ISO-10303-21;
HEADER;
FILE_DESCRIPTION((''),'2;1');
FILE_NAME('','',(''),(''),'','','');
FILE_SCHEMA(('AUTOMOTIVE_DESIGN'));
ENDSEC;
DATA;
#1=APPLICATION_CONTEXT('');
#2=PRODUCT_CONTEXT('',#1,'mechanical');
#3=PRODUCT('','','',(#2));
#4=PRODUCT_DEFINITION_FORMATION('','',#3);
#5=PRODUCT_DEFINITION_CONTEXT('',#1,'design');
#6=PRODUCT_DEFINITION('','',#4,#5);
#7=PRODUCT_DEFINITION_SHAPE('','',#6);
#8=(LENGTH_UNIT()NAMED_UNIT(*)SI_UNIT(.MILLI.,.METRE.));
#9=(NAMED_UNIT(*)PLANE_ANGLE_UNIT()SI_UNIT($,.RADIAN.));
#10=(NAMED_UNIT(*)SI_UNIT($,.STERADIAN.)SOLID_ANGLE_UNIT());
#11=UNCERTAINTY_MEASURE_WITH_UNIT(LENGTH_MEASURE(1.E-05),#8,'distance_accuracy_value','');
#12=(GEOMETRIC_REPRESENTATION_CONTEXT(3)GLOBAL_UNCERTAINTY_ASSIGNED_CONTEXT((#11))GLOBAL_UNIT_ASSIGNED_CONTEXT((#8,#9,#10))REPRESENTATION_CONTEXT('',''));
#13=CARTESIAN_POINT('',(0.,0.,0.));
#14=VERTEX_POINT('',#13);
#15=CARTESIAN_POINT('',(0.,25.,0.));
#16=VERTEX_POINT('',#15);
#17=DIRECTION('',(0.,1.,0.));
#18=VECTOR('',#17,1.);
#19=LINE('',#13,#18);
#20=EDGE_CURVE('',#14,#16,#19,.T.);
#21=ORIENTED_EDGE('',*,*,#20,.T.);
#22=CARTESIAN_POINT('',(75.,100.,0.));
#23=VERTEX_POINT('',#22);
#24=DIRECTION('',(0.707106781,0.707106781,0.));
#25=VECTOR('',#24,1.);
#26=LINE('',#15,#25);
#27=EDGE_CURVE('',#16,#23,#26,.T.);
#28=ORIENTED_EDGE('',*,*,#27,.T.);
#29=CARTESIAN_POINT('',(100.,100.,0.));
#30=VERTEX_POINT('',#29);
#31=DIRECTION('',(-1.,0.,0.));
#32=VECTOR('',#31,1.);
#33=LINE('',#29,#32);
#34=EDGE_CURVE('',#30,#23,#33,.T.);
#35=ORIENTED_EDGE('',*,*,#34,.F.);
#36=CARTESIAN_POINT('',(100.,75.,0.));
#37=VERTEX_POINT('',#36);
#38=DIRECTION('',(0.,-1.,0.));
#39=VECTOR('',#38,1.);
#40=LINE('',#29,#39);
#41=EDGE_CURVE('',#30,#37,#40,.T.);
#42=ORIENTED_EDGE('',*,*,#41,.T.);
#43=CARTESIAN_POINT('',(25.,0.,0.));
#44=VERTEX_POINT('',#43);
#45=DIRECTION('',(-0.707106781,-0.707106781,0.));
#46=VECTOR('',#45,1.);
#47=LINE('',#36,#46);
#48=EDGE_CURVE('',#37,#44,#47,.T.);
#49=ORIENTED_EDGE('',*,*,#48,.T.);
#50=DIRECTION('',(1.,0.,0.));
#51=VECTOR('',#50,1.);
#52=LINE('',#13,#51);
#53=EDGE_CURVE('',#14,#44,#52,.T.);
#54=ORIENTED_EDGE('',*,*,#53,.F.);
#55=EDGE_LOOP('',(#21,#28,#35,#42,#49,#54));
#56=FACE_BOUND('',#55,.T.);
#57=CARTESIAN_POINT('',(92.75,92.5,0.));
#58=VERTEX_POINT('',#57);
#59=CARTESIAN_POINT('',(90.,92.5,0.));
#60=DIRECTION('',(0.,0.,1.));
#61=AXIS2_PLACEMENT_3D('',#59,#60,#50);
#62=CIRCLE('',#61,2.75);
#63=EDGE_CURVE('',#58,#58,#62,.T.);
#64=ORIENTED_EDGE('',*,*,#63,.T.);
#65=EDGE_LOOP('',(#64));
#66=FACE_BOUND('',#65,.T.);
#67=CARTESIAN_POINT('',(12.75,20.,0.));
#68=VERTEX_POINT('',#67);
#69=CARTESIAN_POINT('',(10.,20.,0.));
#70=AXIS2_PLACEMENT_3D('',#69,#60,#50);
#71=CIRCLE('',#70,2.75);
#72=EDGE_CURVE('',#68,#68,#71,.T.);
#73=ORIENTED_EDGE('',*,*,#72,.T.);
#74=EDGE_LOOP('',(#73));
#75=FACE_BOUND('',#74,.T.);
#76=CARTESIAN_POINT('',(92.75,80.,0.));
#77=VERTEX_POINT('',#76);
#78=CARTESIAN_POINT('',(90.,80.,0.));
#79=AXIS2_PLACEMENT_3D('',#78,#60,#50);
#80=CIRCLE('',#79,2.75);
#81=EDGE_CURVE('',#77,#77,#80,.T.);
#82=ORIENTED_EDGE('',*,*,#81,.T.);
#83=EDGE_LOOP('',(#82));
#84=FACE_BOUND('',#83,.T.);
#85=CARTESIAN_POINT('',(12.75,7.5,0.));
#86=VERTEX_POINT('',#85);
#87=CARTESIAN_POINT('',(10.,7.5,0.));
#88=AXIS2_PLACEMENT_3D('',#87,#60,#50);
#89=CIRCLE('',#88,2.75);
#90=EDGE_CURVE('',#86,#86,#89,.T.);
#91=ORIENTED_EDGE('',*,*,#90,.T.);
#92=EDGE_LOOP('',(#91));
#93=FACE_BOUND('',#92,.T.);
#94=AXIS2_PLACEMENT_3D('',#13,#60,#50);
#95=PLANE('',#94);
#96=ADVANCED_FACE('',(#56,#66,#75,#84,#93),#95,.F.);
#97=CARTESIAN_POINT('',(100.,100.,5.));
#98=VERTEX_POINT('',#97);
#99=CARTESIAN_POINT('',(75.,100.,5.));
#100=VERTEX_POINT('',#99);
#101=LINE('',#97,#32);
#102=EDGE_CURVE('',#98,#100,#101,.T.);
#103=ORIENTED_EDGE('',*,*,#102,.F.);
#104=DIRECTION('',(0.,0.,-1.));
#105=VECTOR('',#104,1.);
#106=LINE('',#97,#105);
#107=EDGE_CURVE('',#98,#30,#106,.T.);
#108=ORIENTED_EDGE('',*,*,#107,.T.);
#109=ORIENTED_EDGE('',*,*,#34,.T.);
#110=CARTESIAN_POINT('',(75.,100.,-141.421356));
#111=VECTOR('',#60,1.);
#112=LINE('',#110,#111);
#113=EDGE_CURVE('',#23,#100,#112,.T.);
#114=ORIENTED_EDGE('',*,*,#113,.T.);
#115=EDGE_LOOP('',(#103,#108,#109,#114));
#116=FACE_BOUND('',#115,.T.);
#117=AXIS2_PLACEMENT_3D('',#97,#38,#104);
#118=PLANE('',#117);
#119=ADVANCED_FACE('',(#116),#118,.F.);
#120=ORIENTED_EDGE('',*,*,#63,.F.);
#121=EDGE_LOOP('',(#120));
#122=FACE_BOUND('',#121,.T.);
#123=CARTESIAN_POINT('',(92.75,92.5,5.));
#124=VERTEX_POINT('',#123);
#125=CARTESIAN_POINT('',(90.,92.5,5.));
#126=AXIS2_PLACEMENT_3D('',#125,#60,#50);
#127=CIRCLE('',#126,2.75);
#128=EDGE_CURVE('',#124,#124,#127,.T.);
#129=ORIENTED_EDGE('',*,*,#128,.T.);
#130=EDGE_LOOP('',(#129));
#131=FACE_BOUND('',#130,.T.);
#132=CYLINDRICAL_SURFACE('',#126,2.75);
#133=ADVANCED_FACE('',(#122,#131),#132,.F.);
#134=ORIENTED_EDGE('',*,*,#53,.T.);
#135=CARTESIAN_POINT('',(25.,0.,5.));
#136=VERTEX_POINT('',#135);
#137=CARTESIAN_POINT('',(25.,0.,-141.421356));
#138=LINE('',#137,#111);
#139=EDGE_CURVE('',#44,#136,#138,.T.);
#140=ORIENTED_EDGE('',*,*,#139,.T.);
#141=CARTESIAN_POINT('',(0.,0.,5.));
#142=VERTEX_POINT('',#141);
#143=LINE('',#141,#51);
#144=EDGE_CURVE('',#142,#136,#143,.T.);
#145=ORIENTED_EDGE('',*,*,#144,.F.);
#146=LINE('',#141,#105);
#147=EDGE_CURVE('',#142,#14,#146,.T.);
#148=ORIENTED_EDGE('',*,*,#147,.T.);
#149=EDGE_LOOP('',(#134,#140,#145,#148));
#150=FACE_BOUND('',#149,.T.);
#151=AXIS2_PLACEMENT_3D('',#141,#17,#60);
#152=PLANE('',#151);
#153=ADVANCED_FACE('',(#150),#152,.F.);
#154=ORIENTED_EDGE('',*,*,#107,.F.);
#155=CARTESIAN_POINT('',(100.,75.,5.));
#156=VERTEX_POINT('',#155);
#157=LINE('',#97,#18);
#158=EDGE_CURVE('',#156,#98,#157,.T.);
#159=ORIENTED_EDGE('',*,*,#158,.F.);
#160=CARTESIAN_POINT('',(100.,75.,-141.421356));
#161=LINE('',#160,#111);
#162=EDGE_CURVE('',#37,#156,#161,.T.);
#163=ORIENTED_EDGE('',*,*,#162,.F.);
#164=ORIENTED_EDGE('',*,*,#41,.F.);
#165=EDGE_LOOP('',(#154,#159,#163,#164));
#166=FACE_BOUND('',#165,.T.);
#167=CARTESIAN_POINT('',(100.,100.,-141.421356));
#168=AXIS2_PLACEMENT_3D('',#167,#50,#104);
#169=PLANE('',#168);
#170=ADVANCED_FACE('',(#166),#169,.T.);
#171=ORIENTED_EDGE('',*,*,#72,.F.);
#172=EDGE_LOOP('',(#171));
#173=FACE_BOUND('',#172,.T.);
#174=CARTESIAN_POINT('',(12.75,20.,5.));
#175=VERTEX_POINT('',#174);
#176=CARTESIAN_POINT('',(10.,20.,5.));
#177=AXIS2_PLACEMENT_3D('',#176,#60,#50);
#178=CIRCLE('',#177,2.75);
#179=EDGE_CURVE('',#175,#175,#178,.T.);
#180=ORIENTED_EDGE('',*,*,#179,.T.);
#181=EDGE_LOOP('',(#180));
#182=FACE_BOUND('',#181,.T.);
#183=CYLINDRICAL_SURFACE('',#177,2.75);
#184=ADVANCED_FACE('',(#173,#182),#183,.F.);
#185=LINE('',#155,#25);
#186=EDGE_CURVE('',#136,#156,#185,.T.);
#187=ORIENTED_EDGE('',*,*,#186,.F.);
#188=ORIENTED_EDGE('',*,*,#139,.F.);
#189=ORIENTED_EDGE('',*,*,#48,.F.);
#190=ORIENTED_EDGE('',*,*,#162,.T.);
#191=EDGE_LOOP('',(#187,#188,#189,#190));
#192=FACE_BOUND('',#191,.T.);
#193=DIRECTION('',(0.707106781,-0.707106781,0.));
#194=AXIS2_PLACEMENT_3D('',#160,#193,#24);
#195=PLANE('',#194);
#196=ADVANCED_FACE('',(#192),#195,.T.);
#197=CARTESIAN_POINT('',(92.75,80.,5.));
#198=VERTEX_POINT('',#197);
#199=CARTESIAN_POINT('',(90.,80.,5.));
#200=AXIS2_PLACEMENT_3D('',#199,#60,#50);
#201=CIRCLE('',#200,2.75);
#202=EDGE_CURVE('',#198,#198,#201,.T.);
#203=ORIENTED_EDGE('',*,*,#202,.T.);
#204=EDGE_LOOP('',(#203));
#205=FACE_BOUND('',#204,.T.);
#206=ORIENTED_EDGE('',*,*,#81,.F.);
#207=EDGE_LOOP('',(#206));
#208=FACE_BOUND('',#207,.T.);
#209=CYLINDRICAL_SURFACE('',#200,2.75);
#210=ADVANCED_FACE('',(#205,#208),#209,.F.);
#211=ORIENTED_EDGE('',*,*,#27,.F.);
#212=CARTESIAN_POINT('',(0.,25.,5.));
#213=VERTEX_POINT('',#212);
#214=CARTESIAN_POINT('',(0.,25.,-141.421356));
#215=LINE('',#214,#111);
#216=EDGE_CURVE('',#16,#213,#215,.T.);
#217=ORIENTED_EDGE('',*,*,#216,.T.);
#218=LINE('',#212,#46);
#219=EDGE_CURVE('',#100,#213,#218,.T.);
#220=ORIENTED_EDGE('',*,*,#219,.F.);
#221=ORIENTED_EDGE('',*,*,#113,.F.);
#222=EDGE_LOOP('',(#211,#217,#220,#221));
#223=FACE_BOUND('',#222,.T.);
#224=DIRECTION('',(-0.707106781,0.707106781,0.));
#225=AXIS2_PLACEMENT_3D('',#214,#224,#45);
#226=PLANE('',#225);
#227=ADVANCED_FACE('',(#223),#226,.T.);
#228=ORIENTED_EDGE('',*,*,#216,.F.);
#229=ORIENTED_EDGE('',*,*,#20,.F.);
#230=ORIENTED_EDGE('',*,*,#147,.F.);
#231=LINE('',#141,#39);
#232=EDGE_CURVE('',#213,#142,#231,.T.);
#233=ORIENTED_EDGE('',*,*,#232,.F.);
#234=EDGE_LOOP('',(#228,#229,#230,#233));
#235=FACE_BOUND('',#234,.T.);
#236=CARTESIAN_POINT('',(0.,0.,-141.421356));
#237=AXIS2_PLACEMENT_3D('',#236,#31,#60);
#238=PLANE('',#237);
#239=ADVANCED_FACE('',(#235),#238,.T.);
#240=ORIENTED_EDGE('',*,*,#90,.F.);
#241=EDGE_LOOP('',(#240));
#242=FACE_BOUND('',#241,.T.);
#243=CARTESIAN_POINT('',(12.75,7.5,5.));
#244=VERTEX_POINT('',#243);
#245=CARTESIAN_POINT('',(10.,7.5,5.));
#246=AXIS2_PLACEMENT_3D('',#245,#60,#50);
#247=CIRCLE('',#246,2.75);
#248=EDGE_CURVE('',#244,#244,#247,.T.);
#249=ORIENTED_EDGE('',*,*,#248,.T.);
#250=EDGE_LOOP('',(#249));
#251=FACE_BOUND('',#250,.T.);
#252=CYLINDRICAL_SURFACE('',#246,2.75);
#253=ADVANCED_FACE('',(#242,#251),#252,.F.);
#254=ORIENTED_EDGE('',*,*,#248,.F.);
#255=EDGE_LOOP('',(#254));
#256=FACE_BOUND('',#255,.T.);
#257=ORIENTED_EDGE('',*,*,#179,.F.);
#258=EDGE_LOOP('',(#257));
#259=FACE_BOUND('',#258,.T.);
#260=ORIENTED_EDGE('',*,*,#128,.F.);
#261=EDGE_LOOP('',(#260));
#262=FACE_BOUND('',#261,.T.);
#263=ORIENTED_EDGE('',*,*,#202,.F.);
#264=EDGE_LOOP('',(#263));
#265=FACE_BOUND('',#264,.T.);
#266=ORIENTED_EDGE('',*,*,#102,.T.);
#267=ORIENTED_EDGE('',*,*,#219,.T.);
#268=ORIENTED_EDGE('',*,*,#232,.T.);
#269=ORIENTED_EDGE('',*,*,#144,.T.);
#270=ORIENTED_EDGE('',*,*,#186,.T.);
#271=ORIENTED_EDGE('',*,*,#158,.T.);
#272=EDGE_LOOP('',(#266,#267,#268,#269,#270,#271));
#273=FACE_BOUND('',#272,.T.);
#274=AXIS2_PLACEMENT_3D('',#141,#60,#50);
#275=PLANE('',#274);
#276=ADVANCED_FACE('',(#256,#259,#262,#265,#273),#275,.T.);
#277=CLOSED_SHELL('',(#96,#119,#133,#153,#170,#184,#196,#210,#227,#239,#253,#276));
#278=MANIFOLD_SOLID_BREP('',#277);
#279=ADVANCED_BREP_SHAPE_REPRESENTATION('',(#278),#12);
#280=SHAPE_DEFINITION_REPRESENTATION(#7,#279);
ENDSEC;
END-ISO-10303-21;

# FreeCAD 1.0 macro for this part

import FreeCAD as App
import Part
import Sketcher

V = App.Vector
Q = App.Units.Quantity


def add_polygon(sketch, points):
    """Adds a closed chain of lines whose ends are joined by coincident constraints."""
    first, n = sketch.GeometryCount, len(points)
    for a, b in zip(points, points[1:] + points[:1]):
        sketch.addGeometry(Part.LineSegment(App.Vector(*a, 0), App.Vector(*b, 0)), False)
    for i in range(n):
        sketch.addConstraint(Sketcher.Constraint("Coincident", first + i, 2, first + (i + 1) % n, 1))

doc = App.newDocument("Part")
body = doc.addObject("PartDesign::Body", "Body")

# Sketch on XY plane
sketch1 = doc.addObject("Sketcher::SketchObject", "Sketch")
body.addObject(sketch1)
sketch1.AttachmentSupport = (doc.XY_Plane, [""])
sketch1.MapMode = "FlatFace"
add_polygon(sketch1, [(0, 0), (20, 0), (100, 100), (80, 100)])  # lines 0-3
sketch1.addConstraint(Sketcher.Constraint("Horizontal", 0))
sketch1.addConstraint(Sketcher.Constraint("Horizontal", 2))
sketch1.addConstraint(Sketcher.Constraint("Coincident", 3, 2, -1, 1))
sketch1.addConstraint(Sketcher.Constraint("Parallel", 1, 3))
sketch1.addConstraint(Sketcher.Constraint("DistanceX", 0, 1, 0, 2, Q("20 mm")))
sketch1.addConstraint(Sketcher.Constraint("DistanceX", -1, 1, 1, 2, Q("100 mm")))
sketch1.addConstraint(Sketcher.Constraint("DistanceY", -1, 1, 1, 2, Q("100 mm")))
pad1 = doc.addObject("PartDesign::Pad", "Pad")
body.addObject(pad1)
pad1.Profile = sketch1
pad1.Length = 5

# Sketch on XY plane
sketch2 = doc.addObject("Sketcher::SketchObject", "Sketch001")
body.addObject(sketch2)
sketch2.AttachmentSupport = (doc.XY_Plane, [""])
sketch2.MapMode = "FlatFace"
sketch2.AttachmentOffset = App.Placement(V(0, 0, 5), App.Rotation())
add_polygon(sketch2, [(0, 25), (0, 0), (25, 0), (100, 75), (100, 100), (75, 100)])  # lines 0-5
sketch2.addConstraint(Sketcher.Constraint("Vertical", 0))
sketch2.addConstraint(Sketcher.Constraint("Horizontal", 1))
sketch2.addConstraint(Sketcher.Constraint("Vertical", 3))
sketch2.addConstraint(Sketcher.Constraint("Horizontal", 4))
sketch2.addConstraint(Sketcher.Constraint("Coincident", 0, 2, -1, 1))
sketch2.addConstraint(Sketcher.Constraint("Parallel", 2, 5))
sketch2.addConstraint(Sketcher.Constraint("Equal", 1, 4))
sketch2.addConstraint(Sketcher.Constraint("Equal", 4, 0))
sketch2.addConstraint(Sketcher.Constraint("DistanceX", 1, 1, 1, 2, Q("25 mm")))
sketch2.addConstraint(Sketcher.Constraint("Angle", 2, Q("45 deg")))
sketch2.addConstraint(Sketcher.Constraint("DistanceX", -1, 1, 2, 2, Q("100 mm")))
pad2 = doc.addObject("PartDesign::Pad", "Pad001")
body.addObject(pad2)
pad2.Profile = sketch2
pad2.Length = 5
pad2.Reversed = True

# Sketch on XY plane
sketch3 = doc.addObject("Sketcher::SketchObject", "Sketch002")
body.addObject(sketch3)
sketch3.AttachmentSupport = (doc.XY_Plane, [""])
sketch3.MapMode = "FlatFace"
sketch3.AttachmentOffset = App.Placement(V(0, 0, 5), App.Rotation())
sketch3.addGeometry(Part.Circle(V(10, 20, 0), V(0, 0, 1), 2.8), False)
sketch3.addGeometry(Part.Circle(V(90, 80, 0), V(0, 0, 1), 2.8), False)
sketch3.addGeometry(Part.Circle(V(10, 7.5, 0), V(0, 0, 1), 2.8), False)
sketch3.addGeometry(Part.Circle(V(90, 92.5, 0), V(0, 0, 1), 2.8), False)
sketch3.addConstraint(Sketcher.Constraint("Equal", 0, 1))
sketch3.addConstraint(Sketcher.Constraint("Equal", 1, 2))
sketch3.addConstraint(Sketcher.Constraint("Equal", 2, 3))
sketch3.addConstraint(Sketcher.Constraint("Vertical", 0, 3, 2, 3))
sketch3.addConstraint(Sketcher.Constraint("Vertical", 1, 3, 3, 3))
sketch3.addConstraint(Sketcher.Constraint("Diameter", 0, Q("5.5 mm")))
sketch3.addConstraint(Sketcher.Constraint("DistanceX", -1, 1, 0, 3, Q("10 mm")))
sketch3.addConstraint(Sketcher.Constraint("DistanceY", -1, 1, 0, 3, Q("20 mm")))
sketch3.addConstraint(Sketcher.Constraint("DistanceX", -1, 1, 1, 3, Q("90 mm")))
sketch3.addConstraint(Sketcher.Constraint("DistanceY", -1, 1, 1, 3, Q("80 mm")))
sketch3.addConstraint(Sketcher.Constraint("DistanceY", 2, 3, 3, 3, Q("85 mm")))
sketch3.addConstraint(Sketcher.Constraint("DistanceY", -1, 1, 2, 3, Q("7.5 mm")))
doc.recompute()
hole = doc.addObject("PartDesign::Hole", "Hole")
body.addObject(hole)
hole.Profile = sketch3
hole.ThreadType = "None"
hole.Diameter = 5.5
hole.DepthType = "ThroughAll"

doc.recompute()
